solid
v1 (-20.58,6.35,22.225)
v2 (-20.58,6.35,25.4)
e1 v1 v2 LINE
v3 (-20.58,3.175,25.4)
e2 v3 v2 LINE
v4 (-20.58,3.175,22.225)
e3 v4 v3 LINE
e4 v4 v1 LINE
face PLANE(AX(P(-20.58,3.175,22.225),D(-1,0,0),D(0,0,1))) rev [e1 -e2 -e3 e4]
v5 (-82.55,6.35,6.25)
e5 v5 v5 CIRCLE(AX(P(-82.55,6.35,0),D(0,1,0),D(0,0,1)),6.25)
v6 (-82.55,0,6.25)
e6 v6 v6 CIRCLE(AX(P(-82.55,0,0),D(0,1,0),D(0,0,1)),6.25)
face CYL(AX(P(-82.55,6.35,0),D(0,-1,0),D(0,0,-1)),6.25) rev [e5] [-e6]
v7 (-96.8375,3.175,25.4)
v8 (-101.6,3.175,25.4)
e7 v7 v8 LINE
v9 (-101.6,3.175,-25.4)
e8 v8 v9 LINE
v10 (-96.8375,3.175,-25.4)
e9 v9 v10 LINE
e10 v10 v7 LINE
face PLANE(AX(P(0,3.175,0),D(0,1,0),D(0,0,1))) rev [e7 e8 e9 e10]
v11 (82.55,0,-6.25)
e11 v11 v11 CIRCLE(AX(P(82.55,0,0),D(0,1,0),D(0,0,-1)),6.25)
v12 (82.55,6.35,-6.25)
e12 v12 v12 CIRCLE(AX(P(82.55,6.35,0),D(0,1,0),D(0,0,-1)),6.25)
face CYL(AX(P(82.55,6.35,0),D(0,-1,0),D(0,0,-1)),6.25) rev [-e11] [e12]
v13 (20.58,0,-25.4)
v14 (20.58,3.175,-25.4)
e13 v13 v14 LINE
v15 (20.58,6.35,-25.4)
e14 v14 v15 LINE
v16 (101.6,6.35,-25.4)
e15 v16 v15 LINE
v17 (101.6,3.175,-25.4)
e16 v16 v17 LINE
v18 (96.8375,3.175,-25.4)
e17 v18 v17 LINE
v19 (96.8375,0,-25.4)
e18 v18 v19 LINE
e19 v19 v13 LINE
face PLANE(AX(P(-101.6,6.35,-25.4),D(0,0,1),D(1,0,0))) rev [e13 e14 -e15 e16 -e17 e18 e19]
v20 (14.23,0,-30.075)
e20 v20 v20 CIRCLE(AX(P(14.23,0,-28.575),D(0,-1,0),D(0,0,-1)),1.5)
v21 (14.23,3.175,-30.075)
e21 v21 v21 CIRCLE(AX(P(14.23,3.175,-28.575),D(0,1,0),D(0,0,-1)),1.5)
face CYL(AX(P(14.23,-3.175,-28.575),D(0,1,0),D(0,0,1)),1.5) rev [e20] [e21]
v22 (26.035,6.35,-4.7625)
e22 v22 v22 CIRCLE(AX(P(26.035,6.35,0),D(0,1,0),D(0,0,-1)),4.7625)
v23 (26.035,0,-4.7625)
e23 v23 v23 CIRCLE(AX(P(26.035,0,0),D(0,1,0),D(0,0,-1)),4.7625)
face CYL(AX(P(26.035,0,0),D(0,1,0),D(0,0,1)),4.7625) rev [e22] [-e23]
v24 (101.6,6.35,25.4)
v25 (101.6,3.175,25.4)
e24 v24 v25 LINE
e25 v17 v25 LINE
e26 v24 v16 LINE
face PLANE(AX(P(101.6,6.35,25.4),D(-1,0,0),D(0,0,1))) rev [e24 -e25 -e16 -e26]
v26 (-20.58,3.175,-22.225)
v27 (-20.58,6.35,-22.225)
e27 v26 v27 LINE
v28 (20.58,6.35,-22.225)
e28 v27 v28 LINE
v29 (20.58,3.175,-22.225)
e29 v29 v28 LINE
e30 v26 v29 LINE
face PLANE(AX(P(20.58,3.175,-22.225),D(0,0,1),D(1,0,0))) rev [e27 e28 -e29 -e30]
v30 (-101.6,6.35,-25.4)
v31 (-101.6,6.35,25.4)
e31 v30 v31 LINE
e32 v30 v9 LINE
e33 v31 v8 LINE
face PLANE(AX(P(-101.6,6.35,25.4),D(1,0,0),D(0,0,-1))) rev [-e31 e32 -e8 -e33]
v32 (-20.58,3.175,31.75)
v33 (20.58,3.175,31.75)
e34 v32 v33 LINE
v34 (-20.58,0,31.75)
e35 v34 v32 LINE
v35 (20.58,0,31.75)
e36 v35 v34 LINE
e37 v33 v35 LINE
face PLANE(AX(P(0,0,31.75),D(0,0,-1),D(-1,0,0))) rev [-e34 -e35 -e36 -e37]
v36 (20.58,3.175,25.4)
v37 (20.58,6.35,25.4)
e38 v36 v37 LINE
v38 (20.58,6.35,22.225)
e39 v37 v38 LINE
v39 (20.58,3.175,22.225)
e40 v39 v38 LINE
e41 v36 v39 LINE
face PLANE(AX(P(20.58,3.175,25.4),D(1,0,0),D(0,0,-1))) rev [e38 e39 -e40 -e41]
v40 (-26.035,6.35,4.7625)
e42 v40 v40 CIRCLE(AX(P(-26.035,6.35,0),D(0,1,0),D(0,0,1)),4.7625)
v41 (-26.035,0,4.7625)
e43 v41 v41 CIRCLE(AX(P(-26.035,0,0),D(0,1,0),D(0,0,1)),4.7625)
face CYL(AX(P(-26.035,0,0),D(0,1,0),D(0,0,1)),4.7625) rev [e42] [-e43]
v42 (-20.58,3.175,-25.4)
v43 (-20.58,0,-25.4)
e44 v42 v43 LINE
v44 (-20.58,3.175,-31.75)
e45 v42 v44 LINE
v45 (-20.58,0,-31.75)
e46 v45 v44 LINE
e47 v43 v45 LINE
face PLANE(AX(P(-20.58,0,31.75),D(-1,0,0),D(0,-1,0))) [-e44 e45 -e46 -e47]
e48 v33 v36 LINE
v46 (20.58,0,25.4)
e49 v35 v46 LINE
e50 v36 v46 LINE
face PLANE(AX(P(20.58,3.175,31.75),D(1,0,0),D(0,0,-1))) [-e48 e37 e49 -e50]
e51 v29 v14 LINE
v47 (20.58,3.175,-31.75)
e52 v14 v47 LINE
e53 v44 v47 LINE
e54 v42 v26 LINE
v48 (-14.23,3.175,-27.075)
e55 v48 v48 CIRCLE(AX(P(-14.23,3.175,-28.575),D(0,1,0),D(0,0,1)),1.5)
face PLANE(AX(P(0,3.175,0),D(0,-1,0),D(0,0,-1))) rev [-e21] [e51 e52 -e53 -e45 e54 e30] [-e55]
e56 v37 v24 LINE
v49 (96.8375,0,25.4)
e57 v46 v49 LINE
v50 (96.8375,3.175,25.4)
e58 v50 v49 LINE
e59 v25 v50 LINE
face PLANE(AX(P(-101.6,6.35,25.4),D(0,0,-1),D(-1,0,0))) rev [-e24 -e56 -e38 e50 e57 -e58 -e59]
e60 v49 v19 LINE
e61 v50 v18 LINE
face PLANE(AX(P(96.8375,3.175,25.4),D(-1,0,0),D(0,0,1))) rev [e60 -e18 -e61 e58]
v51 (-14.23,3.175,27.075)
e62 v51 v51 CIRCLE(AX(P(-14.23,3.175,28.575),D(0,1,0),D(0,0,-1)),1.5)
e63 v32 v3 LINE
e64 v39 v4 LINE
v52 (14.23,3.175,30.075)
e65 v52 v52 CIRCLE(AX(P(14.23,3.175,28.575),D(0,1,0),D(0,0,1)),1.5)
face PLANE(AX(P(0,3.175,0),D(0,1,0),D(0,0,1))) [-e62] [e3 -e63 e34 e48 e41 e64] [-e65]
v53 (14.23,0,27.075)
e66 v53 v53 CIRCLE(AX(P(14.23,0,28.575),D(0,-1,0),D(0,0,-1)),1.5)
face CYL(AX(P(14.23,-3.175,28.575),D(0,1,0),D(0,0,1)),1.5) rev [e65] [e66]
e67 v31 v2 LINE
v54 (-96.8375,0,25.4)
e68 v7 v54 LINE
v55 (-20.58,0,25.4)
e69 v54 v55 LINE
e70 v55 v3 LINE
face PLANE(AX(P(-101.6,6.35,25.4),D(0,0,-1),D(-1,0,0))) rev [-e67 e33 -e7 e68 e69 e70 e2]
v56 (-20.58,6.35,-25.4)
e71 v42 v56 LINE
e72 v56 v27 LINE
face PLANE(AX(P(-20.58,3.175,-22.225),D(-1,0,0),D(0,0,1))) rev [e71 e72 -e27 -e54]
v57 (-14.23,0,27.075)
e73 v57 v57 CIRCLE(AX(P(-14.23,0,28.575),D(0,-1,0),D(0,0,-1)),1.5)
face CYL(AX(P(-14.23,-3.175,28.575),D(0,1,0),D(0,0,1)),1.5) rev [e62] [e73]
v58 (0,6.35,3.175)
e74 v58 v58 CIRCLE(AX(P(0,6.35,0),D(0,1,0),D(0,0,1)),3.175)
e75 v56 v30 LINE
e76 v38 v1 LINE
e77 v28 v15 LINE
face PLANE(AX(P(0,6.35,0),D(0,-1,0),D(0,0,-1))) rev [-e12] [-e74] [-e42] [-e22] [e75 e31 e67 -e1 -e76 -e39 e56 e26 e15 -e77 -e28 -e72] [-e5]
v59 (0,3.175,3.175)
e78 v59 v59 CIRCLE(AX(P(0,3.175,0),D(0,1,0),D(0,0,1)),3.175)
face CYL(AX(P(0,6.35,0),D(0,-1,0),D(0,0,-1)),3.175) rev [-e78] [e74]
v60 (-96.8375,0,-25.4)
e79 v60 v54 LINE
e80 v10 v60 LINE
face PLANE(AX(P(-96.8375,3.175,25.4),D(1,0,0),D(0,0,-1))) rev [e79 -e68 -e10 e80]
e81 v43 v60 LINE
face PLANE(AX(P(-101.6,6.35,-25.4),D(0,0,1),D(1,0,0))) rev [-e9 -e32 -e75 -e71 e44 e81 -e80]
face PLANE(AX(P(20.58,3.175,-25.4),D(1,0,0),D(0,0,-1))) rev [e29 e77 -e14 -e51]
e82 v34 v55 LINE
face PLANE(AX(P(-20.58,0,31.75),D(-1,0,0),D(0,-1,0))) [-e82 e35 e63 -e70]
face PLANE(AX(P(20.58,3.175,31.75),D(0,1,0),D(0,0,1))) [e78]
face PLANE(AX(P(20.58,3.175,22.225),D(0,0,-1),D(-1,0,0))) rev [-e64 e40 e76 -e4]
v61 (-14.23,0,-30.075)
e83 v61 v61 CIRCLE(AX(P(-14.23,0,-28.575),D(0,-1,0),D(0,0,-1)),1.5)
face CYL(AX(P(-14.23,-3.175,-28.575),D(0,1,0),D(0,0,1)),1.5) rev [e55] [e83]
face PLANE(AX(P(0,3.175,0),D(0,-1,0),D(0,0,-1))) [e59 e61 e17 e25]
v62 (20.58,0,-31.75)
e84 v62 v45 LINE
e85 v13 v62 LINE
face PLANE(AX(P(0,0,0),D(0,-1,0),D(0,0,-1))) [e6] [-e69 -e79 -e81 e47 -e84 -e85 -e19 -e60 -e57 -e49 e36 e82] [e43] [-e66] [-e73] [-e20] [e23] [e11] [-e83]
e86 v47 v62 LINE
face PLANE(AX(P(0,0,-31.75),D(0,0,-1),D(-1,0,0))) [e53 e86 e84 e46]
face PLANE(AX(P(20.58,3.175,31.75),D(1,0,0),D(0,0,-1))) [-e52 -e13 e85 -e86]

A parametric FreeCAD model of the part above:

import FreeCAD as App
import Part
import Sketcher
from FreeCAD import Vector
Q = App.Units.Quantity

doc = App.newDocument("Part")
params = doc.addObject("Spreadsheet::Sheet", "Params")
for row, (alias, value) in enumerate([
    ("sketch1_diameter", "0.25 in"),
    ("sketch1_width", "8 in"),
    ("sketch1_height", "2 in"),
    ("pad1_length", "0.25 in"),
    ("sketch2_height", "0.125 in"),
    ("pocket1_length", "0.125 in"),
    ("sketch3_height", "2 in"),
    ("sketch3_width", "0.1875 in"),
    ("pocket2_length", "0.125 in"),
    ("sketch4_diameter", "0.375 in"),
    ("sketch5_height", "0.125 in"),
    ("pad2_length", "0.25 in"),
    ("pad2_length2", "2.25 in"),
    ("pocket4_length", "0.25 in"),
], start=1):
    params.set(f"A{row}", alias)
    params.set(f"B{row}", "=" + value)
    params.setAlias(f"B{row}", alias)

body = doc.addObject("PartDesign::Body", "Body")

# Sketch on XZ plane
sketch1 = doc.addObject("Sketcher::SketchObject", "Sketch")
body.addObject(sketch1)
sketch1.AttachmentSupport = (doc.XZ_Plane, [""])
sketch1.MapMode = "FlatFace"
sketch1.addGeometry([
    Part.LineSegment(Vector(-101.6, -25.4, 0), Vector(-101.6, 25.4, 0)),  # 0
    Part.LineSegment(Vector(-101.6, 25.4, 0), Vector(101.6, 25.4, 0)),  # 1
    Part.LineSegment(Vector(101.6, 25.4, 0), Vector(101.6, -25.4, 0)),  # 2
    Part.LineSegment(Vector(101.6, -25.4, 0), Vector(-101.6, -25.4, 0)),  # 3
    Part.Circle(Vector(-82.55, 0, 0), Vector(0, 0, 1), 6.25),  # 4
    Part.Circle(Vector(0, 0, 0), Vector(0, 0, 1), 3.175),  # 5
    Part.Circle(Vector(82.55, 0, 0), Vector(0, 0, 1), 6.25),  # 6
], False)
sketch1.addConstraint([
    Sketcher.Constraint("Coincident", 0, 2, 1, 1),
    Sketcher.Constraint("Coincident", 1, 2, 2, 1),
    Sketcher.Constraint("Coincident", 2, 2, 3, 1),
    Sketcher.Constraint("Coincident", 3, 2, 0, 1),
    Sketcher.Constraint("Vertical", 0),
    Sketcher.Constraint("Horizontal", 1),
    Sketcher.Constraint("Vertical", 2),
    Sketcher.Constraint("Horizontal", 3),
    Sketcher.Constraint("Coincident", 5, 3, -1, 1),
    Sketcher.Constraint("Equal", 4, 6),
    Sketcher.Constraint("Symmetric", 4, 3, 6, 3, -1, 1),
    Sketcher.Constraint("Symmetric", 0, 2, 2, 2, -1, 1),
    Sketcher.Constraint("PointOnObject", 4, 3, -1),
    Sketcher.Constraint("Diameter", 5, Q("0.25 in")),
    Sketcher.Constraint("DistanceX", 1, 1, 1, 2, Q("8 in")),
    Sketcher.Constraint("DistanceY", 0, 1, 0, 2, Q("2 in")),
    Sketcher.Constraint("DistanceX", 4, 3, 6, 3, Q("6.5 in")),
    Sketcher.Constraint("Diameter", 4, Q("12.5 mm")),
])
sketch1.setExpression("Constraints[13]", "Params.sketch1_diameter")
sketch1.setExpression("Constraints[14]", "Params.sketch1_width")
sketch1.setExpression("Constraints[15]", "Params.sketch1_height")
pad1 = doc.addObject("PartDesign::Pad", "Pad")
body.addObject(pad1)
pad1.Profile = sketch1
pad1.setExpression("Length", "Params.pad1_length")
pad1.Reversed = True

# Sketch on XZ plane
sketch2 = doc.addObject("Sketcher::SketchObject", "Sketch001")
body.addObject(sketch2)
sketch2.AttachmentSupport = (doc.XZ_Plane, [""])
sketch2.MapMode = "FlatFace"
sketch2.AttachmentOffset = App.Placement(Vector(0, 0, -0.25 * 25.4), App.Rotation())
sketch2.addGeometry([
    Part.LineSegment(Vector(-20.58, 22.225, 0), Vector(-20.58, 25.4, 0)),  # 0
    Part.LineSegment(Vector(-20.58, 25.4, 0), Vector(20.58, 25.4, 0)),  # 1
    Part.LineSegment(Vector(20.58, 25.4, 0), Vector(20.58, 22.225, 0)),  # 2
    Part.LineSegment(Vector(20.58, 22.225, 0), Vector(-20.58, 22.225, 0)),  # 3
    Part.LineSegment(Vector(-20.58, -25.4, 0), Vector(-20.58, -22.225, 0)),  # 4
    Part.LineSegment(Vector(-20.58, -22.225, 0), Vector(20.58, -22.225, 0)),  # 5
    Part.LineSegment(Vector(20.58, -22.225, 0), Vector(20.58, -25.4, 0)),  # 6
    Part.LineSegment(Vector(20.58, -25.4, 0), Vector(-20.58, -25.4, 0)),  # 7
], False)
sketch2.addConstraint([
    Sketcher.Constraint("Coincident", 0, 2, 1, 1),
    Sketcher.Constraint("Coincident", 1, 2, 2, 1),
    Sketcher.Constraint("Coincident", 2, 2, 3, 1),
    Sketcher.Constraint("Coincident", 3, 2, 0, 1),
    Sketcher.Constraint("Coincident", 4, 2, 5, 1),
    Sketcher.Constraint("Coincident", 5, 2, 6, 1),
    Sketcher.Constraint("Coincident", 6, 2, 7, 1),
    Sketcher.Constraint("Coincident", 7, 2, 4, 1),
    Sketcher.Constraint("Vertical", 0),
    Sketcher.Constraint("Horizontal", 1),
    Sketcher.Constraint("Vertical", 2),
    Sketcher.Constraint("Horizontal", 3),
    Sketcher.Constraint("Vertical", 4),
    Sketcher.Constraint("Horizontal", 5),
    Sketcher.Constraint("Vertical", 6),
    Sketcher.Constraint("Horizontal", 7),
    Sketcher.Constraint("Symmetric", 2, 2, 4, 2, -1, 1),
    Sketcher.Constraint("Symmetric", 0, 2, 6, 2, -1, 1),
    Sketcher.Constraint("Vertical", 3, 2, 4, 2),
    Sketcher.Constraint("DistanceY", -1, 1, 0, 2, Q("1 in")),
    Sketcher.Constraint("DistanceY", 0, 1, 0, 2, Q("0.125 in")),
    Sketcher.Constraint("DistanceX", 1, 1, 1, 2, Q("41.16 mm")),
])
sketch2.setExpression("Constraints[20]", "Params.sketch2_height")
pocket1 = doc.addObject("PartDesign::Pocket", "Pocket")
body.addObject(pocket1)
pocket1.Profile = sketch2
pocket1.setExpression("Length", "Params.pocket1_length")
pocket1.Reversed = True

# Sketch on XZ plane
sketch3 = doc.addObject("Sketcher::SketchObject", "Sketch002")
body.addObject(sketch3)
sketch3.AttachmentSupport = (doc.XZ_Plane, [""])
sketch3.MapMode = "FlatFace"
sketch3.addGeometry([
    Part.LineSegment(Vector(-101.6, 25.4, 0), Vector(-101.6, -25.4, 0)),  # 0
    Part.LineSegment(Vector(-101.6, -25.4, 0), Vector(-96.8375, -25.4, 0)),  # 1
    Part.LineSegment(Vector(-96.8375, -25.4, 0), Vector(-96.8375, 25.4, 0)),  # 2
    Part.LineSegment(Vector(-96.8375, 25.4, 0), Vector(-101.6, 25.4, 0)),  # 3
    Part.LineSegment(Vector(96.8375, 25.4, 0), Vector(96.8375, -25.4, 0)),  # 4
    Part.LineSegment(Vector(96.8375, -25.4, 0), Vector(101.6, -25.4, 0)),  # 5
    Part.LineSegment(Vector(101.6, -25.4, 0), Vector(101.6, 25.4, 0)),  # 6
    Part.LineSegment(Vector(101.6, 25.4, 0), Vector(96.8375, 25.4, 0)),  # 7
], False)
sketch3.addConstraint([
    Sketcher.Constraint("Coincident", 0, 2, 1, 1),
    Sketcher.Constraint("Coincident", 1, 2, 2, 1),
    Sketcher.Constraint("Coincident", 2, 2, 3, 1),
    Sketcher.Constraint("Coincident", 3, 2, 0, 1),
    Sketcher.Constraint("Coincident", 4, 2, 5, 1),
    Sketcher.Constraint("Coincident", 5, 2, 6, 1),
    Sketcher.Constraint("Coincident", 6, 2, 7, 1),
    Sketcher.Constraint("Coincident", 7, 2, 4, 1),
    Sketcher.Constraint("Vertical", 0),
    Sketcher.Constraint("Horizontal", 1),
    Sketcher.Constraint("Vertical", 2),
    Sketcher.Constraint("Horizontal", 3),
    Sketcher.Constraint("Vertical", 4),
    Sketcher.Constraint("Horizontal", 5),
    Sketcher.Constraint("Vertical", 6),
    Sketcher.Constraint("Horizontal", 7),
    Sketcher.Constraint("Symmetric", 2, 2, 4, 2, -1, 1),
    Sketcher.Constraint("Symmetric", 0, 2, 6, 2, -1, 1),
    Sketcher.Constraint("Horizontal", 1, 2, 4, 2),
    Sketcher.Constraint("DistanceY", 0, 2, 0, 1, Q("2 in")),
    Sketcher.Constraint("DistanceX", 0, 2, -1, 1, Q("4 in")),
    Sketcher.Constraint("DistanceX", 1, 1, 1, 2, Q("0.1875 in")),
])
sketch3.setExpression("Constraints[19]", "Params.sketch3_height")
sketch3.setExpression("Constraints[21]", "Params.sketch3_width")
pocket2 = doc.addObject("PartDesign::Pocket", "Pocket001")
body.addObject(pocket2)
pocket2.Profile = sketch3
pocket2.setExpression("Length", "Params.pocket2_length")

# Sketch on XZ plane
sketch4 = doc.addObject("Sketcher::SketchObject", "Sketch003")
body.addObject(sketch4)
sketch4.AttachmentSupport = (doc.XZ_Plane, [""])
sketch4.MapMode = "FlatFace"
sketch4.AttachmentOffset = App.Placement(Vector(0, 0, -0.25 * 25.4), App.Rotation())
sketch4.addGeometry([
    Part.Circle(Vector(-26.035, 0, 0), Vector(0, 0, 1), 4.7625),
    Part.Circle(Vector(26.035, 0, 0), Vector(0, 0, 1), 4.7625),
], False)
sketch4.addConstraint([
    Sketcher.Constraint("Equal", 0, 1),
    Sketcher.Constraint("Symmetric", 0, 3, 1, 3, -1, 1),
    Sketcher.Constraint("PointOnObject", 0, 3, -1),
    Sketcher.Constraint("Diameter", 0, Q("0.375 in")),
    Sketcher.Constraint("DistanceX", 0, 3, 1, 3, Q("2.05 in")),
])
sketch4.setExpression("Constraints[3]", "Params.sketch4_diameter")
pocket3 = doc.addObject("PartDesign::Pocket", "Pocket002")
body.addObject(pocket3)
pocket3.Profile = sketch4
pocket3.Type = "ThroughAll"
pocket3.Reversed = True

# Sketch on XY plane
sketch5 = doc.addObject("Sketcher::SketchObject", "Sketch004")
body.addObject(sketch5)
sketch5.AttachmentSupport = (doc.XY_Plane, [""])
sketch5.MapMode = "FlatFace"
sketch5.AttachmentOffset = App.Placement(Vector(0, 0, -1 * 25.4), App.Rotation())
sketch5.addGeometry([
    Part.LineSegment(Vector(20.58, 3.175, 0), Vector(20.58, 0, 0)),
    Part.LineSegment(Vector(20.58, 0, 0), Vector(-20.58, 0, 0)),
    Part.LineSegment(Vector(-20.58, 0, 0), Vector(-20.58, 3.175, 0)),
    Part.LineSegment(Vector(-20.58, 3.175, 0), Vector(20.58, 3.175, 0)),
], False)
sketch5.addConstraint([
    Sketcher.Constraint("Coincident", 0, 2, 1, 1),
    Sketcher.Constraint("Coincident", 1, 2, 2, 1),
    Sketcher.Constraint("Coincident", 2, 2, 3, 1),
    Sketcher.Constraint("Coincident", 3, 2, 0, 1),
    Sketcher.Constraint("Vertical", 0),
    Sketcher.Constraint("Horizontal", 1),
    Sketcher.Constraint("Vertical", 2),
    Sketcher.Constraint("Horizontal", 3),
    Sketcher.Constraint("Symmetric", 0, 2, 1, 2, -1, 1),
    Sketcher.Constraint("DistanceY", 0, 2, 0, 1, Q("0.125 in")),
    Sketcher.Constraint("DistanceX", 1, 2, 1, 1, Q("41.16 mm")),
])
sketch5.setExpression("Constraints[9]", "Params.sketch5_height")
pad2 = doc.addObject("PartDesign::Pad", "Pad001")
body.addObject(pad2)
pad2.Profile = sketch5
pad2.Type = "TwoLengths"
pad2.setExpression("Length", "Params.pad2_length")
pad2.setExpression("Length2", "Params.pad2_length2")
pad2.Reversed = True

# Sketch on XZ plane
sketch6 = doc.addObject("Sketcher::SketchObject", "Sketch005")
body.addObject(sketch6)
sketch6.AttachmentSupport = (doc.XZ_Plane, [""])
sketch6.MapMode = "FlatFace"
sketch6.AttachmentOffset = App.Placement(Vector(0, 0, -0.125 * 25.4), App.Rotation())
sketch6.addGeometry([
    Part.Circle(Vector(-14.23, -28.575, 0), Vector(0, 0, 1), 1.5),
    Part.Circle(Vector(14.23, -28.575, 0), Vector(0, 0, 1), 1.5),
    Part.Circle(Vector(14.23, 28.575, 0), Vector(0, 0, 1), 1.5),
    Part.Circle(Vector(-14.23, 28.575, 0), Vector(0, 0, 1), 1.5),
], False)
sketch6.addConstraint([
    Sketcher.Constraint("Equal", 0, 1),
    Sketcher.Constraint("Equal", 1, 2),
    Sketcher.Constraint("Equal", 2, 3),
    Sketcher.Constraint("Symmetric", 0, 3, 2, 3, -1, 1),
    Sketcher.Constraint("Symmetric", 1, 3, 3, 3, -1, 1),
    Sketcher.Constraint("Symmetric", 0, 3, 1, 3, -2),
    Sketcher.Constraint("Diameter", 0, Q("3 mm")),
    Sketcher.Constraint("DistanceY", 1, 3, 2, 3, Q("2.25 in")),
    Sketcher.Constraint("DistanceX", 0, 3, -1, 1, Q("14.23 mm")),
])
pocket4 = doc.addObject("PartDesign::Pocket", "Pocket003")
body.addObject(pocket4)
pocket4.Profile = sketch6
pocket4.setExpression("Length", "Params.pocket4_length")
pocket4.Reversed = True

doc.recompute()
